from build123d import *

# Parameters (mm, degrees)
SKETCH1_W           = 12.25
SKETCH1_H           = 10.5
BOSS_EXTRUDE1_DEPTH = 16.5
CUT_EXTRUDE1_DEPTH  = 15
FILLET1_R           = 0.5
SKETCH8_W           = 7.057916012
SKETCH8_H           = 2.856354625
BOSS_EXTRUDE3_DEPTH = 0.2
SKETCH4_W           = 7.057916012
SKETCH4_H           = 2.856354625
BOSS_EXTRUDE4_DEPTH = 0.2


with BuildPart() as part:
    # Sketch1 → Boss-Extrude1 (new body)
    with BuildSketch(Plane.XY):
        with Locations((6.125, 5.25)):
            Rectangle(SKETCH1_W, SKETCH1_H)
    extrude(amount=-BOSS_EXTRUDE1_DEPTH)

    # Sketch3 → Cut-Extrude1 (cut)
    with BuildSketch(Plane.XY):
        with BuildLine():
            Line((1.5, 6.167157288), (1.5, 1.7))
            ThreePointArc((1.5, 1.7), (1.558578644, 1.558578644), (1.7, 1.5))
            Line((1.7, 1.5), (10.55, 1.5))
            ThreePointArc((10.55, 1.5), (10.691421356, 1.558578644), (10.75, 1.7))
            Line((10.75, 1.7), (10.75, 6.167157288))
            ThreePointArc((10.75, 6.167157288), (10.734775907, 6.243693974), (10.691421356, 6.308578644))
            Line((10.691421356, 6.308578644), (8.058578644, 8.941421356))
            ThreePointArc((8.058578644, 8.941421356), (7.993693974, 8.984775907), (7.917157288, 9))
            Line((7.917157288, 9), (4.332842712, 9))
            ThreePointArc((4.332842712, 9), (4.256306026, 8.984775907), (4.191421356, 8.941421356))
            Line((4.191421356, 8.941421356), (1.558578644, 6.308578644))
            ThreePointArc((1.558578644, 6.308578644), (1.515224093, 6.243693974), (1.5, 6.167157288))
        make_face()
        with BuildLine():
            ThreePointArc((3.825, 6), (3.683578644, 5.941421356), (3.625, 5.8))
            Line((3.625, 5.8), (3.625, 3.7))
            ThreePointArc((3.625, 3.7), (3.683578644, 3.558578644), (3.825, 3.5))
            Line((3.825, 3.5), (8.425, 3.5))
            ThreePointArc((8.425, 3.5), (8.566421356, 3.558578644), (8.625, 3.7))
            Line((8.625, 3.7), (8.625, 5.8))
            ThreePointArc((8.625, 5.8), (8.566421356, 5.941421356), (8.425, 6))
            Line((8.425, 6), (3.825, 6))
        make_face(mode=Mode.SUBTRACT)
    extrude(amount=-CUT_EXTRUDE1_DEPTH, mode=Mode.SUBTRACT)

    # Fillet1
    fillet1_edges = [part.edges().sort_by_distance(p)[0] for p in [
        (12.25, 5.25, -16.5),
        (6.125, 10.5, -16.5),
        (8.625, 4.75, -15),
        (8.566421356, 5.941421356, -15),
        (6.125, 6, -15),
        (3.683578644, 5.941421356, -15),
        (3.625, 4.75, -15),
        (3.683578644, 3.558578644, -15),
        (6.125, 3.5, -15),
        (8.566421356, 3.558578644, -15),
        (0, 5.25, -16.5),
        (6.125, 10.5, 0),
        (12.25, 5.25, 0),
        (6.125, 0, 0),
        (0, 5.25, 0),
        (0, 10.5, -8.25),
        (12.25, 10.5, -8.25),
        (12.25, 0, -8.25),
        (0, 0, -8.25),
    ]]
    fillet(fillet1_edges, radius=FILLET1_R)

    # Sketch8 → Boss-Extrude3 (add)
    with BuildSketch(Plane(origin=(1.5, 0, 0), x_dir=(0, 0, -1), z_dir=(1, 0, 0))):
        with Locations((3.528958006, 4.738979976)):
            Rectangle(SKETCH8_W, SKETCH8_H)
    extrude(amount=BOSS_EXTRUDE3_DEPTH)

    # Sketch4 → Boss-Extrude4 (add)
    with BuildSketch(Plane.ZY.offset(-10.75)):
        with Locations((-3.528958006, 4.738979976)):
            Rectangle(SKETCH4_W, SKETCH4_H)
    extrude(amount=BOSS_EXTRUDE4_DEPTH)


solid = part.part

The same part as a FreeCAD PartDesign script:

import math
import FreeCAD as App
import Part
import Sketcher

V = App.Vector


def edges_at(feature, points):
    """Names of the edges that pass closest to the given points."""
    edges = feature.Shape.Edges
    near = lambda p: min(range(len(edges)), key=lambda i: edges[i].distToShape(Part.Vertex(*p))[0])
    return sorted({f"Edge{near(p) + 1}" for p in points})

doc = App.newDocument("Part")
body = doc.addObject("PartDesign::Body", "Body")

sketch1 = body.newObject("Sketcher::SketchObject", "Sketch")
sketch1.AttachmentSupport = (doc.getObject("XY_Plane"), [""])
sketch1.MapMode = "FlatFace"
sketch1.addGeometry(Part.LineSegment(V(0, 10, 0), V(0, 0, 0)), False)
sketch1.addGeometry(Part.LineSegment(V(0, 0, 0), V(12, 0, 0)), False)
sketch1.addGeometry(Part.LineSegment(V(12, 0, 0), V(12, 10, 0)), False)
sketch1.addGeometry(Part.LineSegment(V(12, 10, 0), V(0, 10, 0)), False)
sketch1.addConstraint(Sketcher.Constraint("Coincident", 0, 2, 1, 1))
sketch1.addConstraint(Sketcher.Constraint("Coincident", 1, 2, 2, 1))
sketch1.addConstraint(Sketcher.Constraint("Coincident", 2, 2, 3, 1))
sketch1.addConstraint(Sketcher.Constraint("Coincident", 3, 2, 0, 1))
sketch1.addConstraint(Sketcher.Constraint("Vertical", 0))
sketch1.addConstraint(Sketcher.Constraint("Horizontal", 1))
sketch1.addConstraint(Sketcher.Constraint("Vertical", 2))
sketch1.addConstraint(Sketcher.Constraint("Horizontal", 3))
sketch1.addConstraint(Sketcher.Constraint("Coincident", 0, 2, -1, 1))
sketch1.addConstraint(Sketcher.Constraint("DistanceY", 0, 2, 0, 1, 10.5))
sketch1.addConstraint(Sketcher.Constraint("DistanceX", 1, 1, 1, 2, 12.25))
pad1 = body.newObject("PartDesign::Pad", "Pad")
pad1.Profile = sketch1
pad1.Length = 16.5
pad1.Reversed = True

sketch2 = body.newObject("Sketcher::SketchObject", "Sketch001")
sketch2.AttachmentSupport = (doc.getObject("XY_Plane"), [""])
sketch2.MapMode = "FlatFace"
sketch2.addGeometry(Part.LineSegment(V(1.5, 6.17, 0), V(1.5, 1.7, 0)), False)
sketch2.addGeometry(Part.ArcOfCircle(Part.Circle(V(1.7, 1.7, 0), V(0, 0, 1), 0.2), math.radians(-180), math.radians(-90)), False)
sketch2.addGeometry(Part.LineSegment(V(1.7, 1.5, 0), V(10.55, 1.5, 0)), False)
sketch2.addGeometry(Part.ArcOfCircle(Part.Circle(V(10.55, 1.7, 0), V(0, 0, 1), 0.2), math.radians(-90), math.radians(0)), False)
sketch2.addGeometry(Part.LineSegment(V(10.75, 1.7, 0), V(10.75, 6.17, 0)), False)
sketch2.addGeometry(Part.ArcOfCircle(Part.Circle(V(10.55, 6.17, 0), V(0, 0, 1), 0.2), math.radians(0), math.radians(45)), False)
sketch2.addGeometry(Part.LineSegment(V(10.69, 6.31, 0), V(8.06, 8.94, 0)), False)
sketch2.addGeometry(Part.ArcOfCircle(Part.Circle(V(7.92, 8.8, 0), V(0, 0, 1), 0.2), math.radians(45), math.radians(90)), False)
sketch2.addGeometry(Part.LineSegment(V(7.92, 9, 0), V(4.33, 9, 0)), False)
sketch2.addGeometry(Part.ArcOfCircle(Part.Circle(V(4.33, 8.8, 0), V(0, 0, 1), 0.2), math.radians(90), math.radians(135)), False)
sketch2.addGeometry(Part.LineSegment(V(4.19, 8.94, 0), V(1.56, 6.31, 0)), False)
sketch2.addGeometry(Part.ArcOfCircle(Part.Circle(V(1.7, 6.17, 0), V(0, 0, 1), 0.2), math.radians(135), math.radians(180)), False)
sketch2.addGeometry(Part.ArcOfCircle(Part.Circle(V(3.83, 5.8, 0), V(0, 0, 1), 0.2), math.radians(90), math.radians(180)), False)
sketch2.addGeometry(Part.LineSegment(V(3.83, 6, 0), V(8.43, 6, 0)), False)
sketch2.addGeometry(Part.ArcOfCircle(Part.Circle(V(8.42, 5.8, 0), V(0, 0, 1), 0.2), math.radians(0), math.radians(90)), False)
sketch2.addGeometry(Part.LineSegment(V(8.62, 5.8, 0), V(8.62, 3.7, 0)), False)
sketch2.addGeometry(Part.ArcOfCircle(Part.Circle(V(8.42, 3.7, 0), V(0, 0, 1), 0.2), math.radians(-90), math.radians(0)), False)
sketch2.addGeometry(Part.LineSegment(V(8.43, 3.5, 0), V(3.83, 3.5, 0)), False)
sketch2.addGeometry(Part.ArcOfCircle(Part.Circle(V(3.83, 3.7, 0), V(0, 0, 1), 0.2), math.radians(-180), math.radians(-90)), False)
sketch2.addGeometry(Part.LineSegment(V(3.62, 3.7, 0), V(3.62, 5.8, 0)), False)
sketch2.addConstraint(Sketcher.Constraint("Tangent", 0, 2, 1, 1))
sketch2.addConstraint(Sketcher.Constraint("Tangent", 1, 2, 2, 1))
sketch2.addConstraint(Sketcher.Constraint("Tangent", 2, 2, 3, 1))
sketch2.addConstraint(Sketcher.Constraint("Tangent", 3, 2, 4, 1))
sketch2.addConstraint(Sketcher.Constraint("Tangent", 4, 2, 5, 1))
sketch2.addConstraint(Sketcher.Constraint("Tangent", 5, 2, 6, 1))
sketch2.addConstraint(Sketcher.Constraint("Tangent", 6, 2, 7, 1))
sketch2.addConstraint(Sketcher.Constraint("Tangent", 7, 2, 8, 1))
sketch2.addConstraint(Sketcher.Constraint("Tangent", 8, 2, 9, 1))
sketch2.addConstraint(Sketcher.Constraint("Tangent", 9, 2, 10, 1))
sketch2.addConstraint(Sketcher.Constraint("Tangent", 10, 2, 11, 1))
sketch2.addConstraint(Sketcher.Constraint("Tangent", 11, 2, 0, 1))
sketch2.addConstraint(Sketcher.Constraint("Tangent", 12, 1, 13, 1))
sketch2.addConstraint(Sketcher.Constraint("Tangent", 13, 2, 14, 2))
sketch2.addConstraint(Sketcher.Constraint("Tangent", 14, 1, 15, 1))
sketch2.addConstraint(Sketcher.Constraint("Tangent", 15, 2, 16, 2))
sketch2.addConstraint(Sketcher.Constraint("Tangent", 16, 1, 17, 1))
sketch2.addConstraint(Sketcher.Constraint("Tangent", 17, 2, 18, 2))
sketch2.addConstraint(Sketcher.Constraint("Tangent", 18, 1, 19, 1))
sketch2.addConstraint(Sketcher.Constraint("Tangent", 19, 2, 12, 2))
sketch2.addConstraint(Sketcher.Constraint("Vertical", 0))
sketch2.addConstraint(Sketcher.Constraint("Horizontal", 2))
sketch2.addConstraint(Sketcher.Constraint("Vertical", 4))
sketch2.addConstraint(Sketcher.Constraint("Horizontal", 8))
sketch2.addConstraint(Sketcher.Constraint("Horizontal", 13))
sketch2.addConstraint(Sketcher.Constraint("Vertical", 15))
sketch2.addConstraint(Sketcher.Constraint("Horizontal", 17))
sketch2.addConstraint(Sketcher.Constraint("Vertical", 19))
sketch2.addConstraint(Sketcher.Constraint("Equal", 1, 3))
sketch2.addConstraint(Sketcher.Constraint("Equal", 3, 5))
sketch2.addConstraint(Sketcher.Constraint("Equal", 5, 7))
sketch2.addConstraint(Sketcher.Constraint("Equal", 7, 9))
sketch2.addConstraint(Sketcher.Constraint("Equal", 9, 11))
sketch2.addConstraint(Sketcher.Constraint("Equal", 11, 12))
sketch2.addConstraint(Sketcher.Constraint("Equal", 12, 14))
sketch2.addConstraint(Sketcher.Constraint("Equal", 14, 16))
sketch2.addConstraint(Sketcher.Constraint("Equal", 16, 18))
sketch2.addConstraint(Sketcher.Constraint("Perpendicular", 6, 10))
sketch2.addConstraint(Sketcher.Constraint("Horizontal", 5, 3, 11, 3))
sketch2.addConstraint(Sketcher.Constraint("Horizontal", 6, 2, 9, 2))
sketch2.addConstraint(Sketcher.Constraint("Radius", 1, 0.2))
sketch2.addConstraint(Sketcher.Constraint("DistanceX", 13, 1, 13, 2, 4.6))
sketch2.addConstraint(Sketcher.Constraint("DistanceY", 15, 2, 15, 1, 2.1))
sketch2.addConstraint(Sketcher.Constraint("DistanceY", -1, 1, 7, 2, 9.0))
sketch2.addConstraint(Sketcher.Constraint("DistanceY", -1, 1, 12, 1, 6.0))
sketch2.addConstraint(Sketcher.Constraint("DistanceY", 3, 3, 16, 3, 2.0))
sketch2.addConstraint(Sketcher.Constraint("DistanceX", 2, 1, 2, 2, 8.85))
sketch2.addConstraint(Sketcher.Constraint("DistanceX", -1, 1, 1, 3, 1.7))
sketch2.addConstraint(Sketcher.Constraint("DistanceX", -1, 1, 12, 3, 3.825))
sketch2.addConstraint(Sketcher.Constraint("Distance", 6, 3.723402))
pocket1 = body.newObject("PartDesign::Pocket", "Pocket")
pocket1.Profile = sketch2
pocket1.Length = 15
doc.recompute()

fillet = body.newObject("PartDesign::Fillet", "Fillet")
fillet.Base = (pocket1, edges_at(pocket1, [
    (12.25, 5.25, -16.5),
    (6.125, 10.5, -16.5),
    (8.625, 4.75, -15),
    (8.566, 5.941, -15),
    (6.125, 6, -15),
    (3.684, 5.941, -15),
    (3.625, 4.75, -15),
    (3.684, 3.559, -15),
    (6.125, 3.5, -15),
    (8.566, 3.559, -15),
    (0, 5.25, -16.5),
    (6.125, 10.5, 0),
    (12.25, 5.25, 0),
    (6.125, 0, 0),
    (0, 5.25, 0),
    (0, 10.5, -8.25),
    (12.25, 10.5, -8.25),
    (12.25, 0, -8.25),
    (0, 0, -8.25),
]))
fillet.Radius = 0.5

sketch3 = body.newObject("Sketcher::SketchObject", "Sketch002")
sketch3.AttachmentSupport = (doc.getObject("YZ_Plane"), [""])
sketch3.MapMode = "FlatFace"
sketch3.AttachmentOffset = App.Placement(V(0, 0, 1.5), App.Rotation())
sketch3.addGeometry(Part.LineSegment(V(6.2, 0, 0), V(3.3, 0, 0)), False)
sketch3.addGeometry(Part.LineSegment(V(3.3, 0, 0), V(3.3, -7.1, 0)), False)
sketch3.addGeometry(Part.LineSegment(V(3.3, -7.1, 0), V(6.2, -7.1, 0)), False)
sketch3.addGeometry(Part.LineSegment(V(6.2, -7.1, 0), V(6.2, 0, 0)), False)
sketch3.addConstraint(Sketcher.Constraint("Coincident", 0, 2, 1, 1))
sketch3.addConstraint(Sketcher.Constraint("Coincident", 1, 2, 2, 1))
sketch3.addConstraint(Sketcher.Constraint("Coincident", 2, 2, 3, 1))
sketch3.addConstraint(Sketcher.Constraint("Coincident", 3, 2, 0, 1))
sketch3.addConstraint(Sketcher.Constraint("Horizontal", 0))
sketch3.addConstraint(Sketcher.Constraint("Vertical", 1))
sketch3.addConstraint(Sketcher.Constraint("Horizontal", 2))
sketch3.addConstraint(Sketcher.Constraint("Vertical", 3))
sketch3.addConstraint(Sketcher.Constraint("PointOnObject", 0, 2, -1))
sketch3.addConstraint(Sketcher.Constraint("DistanceX", 0, 2, 0, 1, 2.856355))
sketch3.addConstraint(Sketcher.Constraint("DistanceY", 1, 2, 1, 1, 7.057916))
sketch3.addConstraint(Sketcher.Constraint("DistanceX", -1, 1, 0, 2, 3.310803))
pad2 = body.newObject("PartDesign::Pad", "Pad001")
pad2.Profile = sketch3
pad2.Length = 0.2

sketch4 = body.newObject("Sketcher::SketchObject", "Sketch003")
sketch4.AttachmentSupport = (doc.getObject("YZ_Plane"), [""])
sketch4.MapMode = "FlatFace"
sketch4.AttachmentOffset = App.Placement(V(0, 0, 10.75), App.Rotation())
sketch4.addGeometry(Part.LineSegment(V(6.2, -7.1, 0), V(3.3, -7.1, 0)), False)
sketch4.addGeometry(Part.LineSegment(V(3.3, -7.1, 0), V(3.3, 0, 0)), False)
sketch4.addGeometry(Part.LineSegment(V(3.3, 0, 0), V(6.2, 0, 0)), False)
sketch4.addGeometry(Part.LineSegment(V(6.2, 0, 0), V(6.2, -7.1, 0)), False)
sketch4.addConstraint(Sketcher.Constraint("Coincident", 0, 2, 1, 1))
sketch4.addConstraint(Sketcher.Constraint("Coincident", 1, 2, 2, 1))
sketch4.addConstraint(Sketcher.Constraint("Coincident", 2, 2, 3, 1))
sketch4.addConstraint(Sketcher.Constraint("Coincident", 3, 2, 0, 1))
sketch4.addConstraint(Sketcher.Constraint("Horizontal", 0))
sketch4.addConstraint(Sketcher.Constraint("Vertical", 1))
sketch4.addConstraint(Sketcher.Constraint("Horizontal", 2))
sketch4.addConstraint(Sketcher.Constraint("Vertical", 3))
sketch4.addConstraint(Sketcher.Constraint("PointOnObject", 1, 2, -1))
sketch4.addConstraint(Sketcher.Constraint("DistanceX", 0, 2, 0, 1, 2.856355))
sketch4.addConstraint(Sketcher.Constraint("DistanceY", 1, 1, 1, 2, 7.057916))
sketch4.addConstraint(Sketcher.Constraint("DistanceX", -1, 1, 0, 2, 3.310803))
pad3 = body.newObject("PartDesign::Pad", "Pad002")
pad3.Profile = sketch4
pad3.Length = 0.2
pad3.Reversed = True

doc.recompute()
